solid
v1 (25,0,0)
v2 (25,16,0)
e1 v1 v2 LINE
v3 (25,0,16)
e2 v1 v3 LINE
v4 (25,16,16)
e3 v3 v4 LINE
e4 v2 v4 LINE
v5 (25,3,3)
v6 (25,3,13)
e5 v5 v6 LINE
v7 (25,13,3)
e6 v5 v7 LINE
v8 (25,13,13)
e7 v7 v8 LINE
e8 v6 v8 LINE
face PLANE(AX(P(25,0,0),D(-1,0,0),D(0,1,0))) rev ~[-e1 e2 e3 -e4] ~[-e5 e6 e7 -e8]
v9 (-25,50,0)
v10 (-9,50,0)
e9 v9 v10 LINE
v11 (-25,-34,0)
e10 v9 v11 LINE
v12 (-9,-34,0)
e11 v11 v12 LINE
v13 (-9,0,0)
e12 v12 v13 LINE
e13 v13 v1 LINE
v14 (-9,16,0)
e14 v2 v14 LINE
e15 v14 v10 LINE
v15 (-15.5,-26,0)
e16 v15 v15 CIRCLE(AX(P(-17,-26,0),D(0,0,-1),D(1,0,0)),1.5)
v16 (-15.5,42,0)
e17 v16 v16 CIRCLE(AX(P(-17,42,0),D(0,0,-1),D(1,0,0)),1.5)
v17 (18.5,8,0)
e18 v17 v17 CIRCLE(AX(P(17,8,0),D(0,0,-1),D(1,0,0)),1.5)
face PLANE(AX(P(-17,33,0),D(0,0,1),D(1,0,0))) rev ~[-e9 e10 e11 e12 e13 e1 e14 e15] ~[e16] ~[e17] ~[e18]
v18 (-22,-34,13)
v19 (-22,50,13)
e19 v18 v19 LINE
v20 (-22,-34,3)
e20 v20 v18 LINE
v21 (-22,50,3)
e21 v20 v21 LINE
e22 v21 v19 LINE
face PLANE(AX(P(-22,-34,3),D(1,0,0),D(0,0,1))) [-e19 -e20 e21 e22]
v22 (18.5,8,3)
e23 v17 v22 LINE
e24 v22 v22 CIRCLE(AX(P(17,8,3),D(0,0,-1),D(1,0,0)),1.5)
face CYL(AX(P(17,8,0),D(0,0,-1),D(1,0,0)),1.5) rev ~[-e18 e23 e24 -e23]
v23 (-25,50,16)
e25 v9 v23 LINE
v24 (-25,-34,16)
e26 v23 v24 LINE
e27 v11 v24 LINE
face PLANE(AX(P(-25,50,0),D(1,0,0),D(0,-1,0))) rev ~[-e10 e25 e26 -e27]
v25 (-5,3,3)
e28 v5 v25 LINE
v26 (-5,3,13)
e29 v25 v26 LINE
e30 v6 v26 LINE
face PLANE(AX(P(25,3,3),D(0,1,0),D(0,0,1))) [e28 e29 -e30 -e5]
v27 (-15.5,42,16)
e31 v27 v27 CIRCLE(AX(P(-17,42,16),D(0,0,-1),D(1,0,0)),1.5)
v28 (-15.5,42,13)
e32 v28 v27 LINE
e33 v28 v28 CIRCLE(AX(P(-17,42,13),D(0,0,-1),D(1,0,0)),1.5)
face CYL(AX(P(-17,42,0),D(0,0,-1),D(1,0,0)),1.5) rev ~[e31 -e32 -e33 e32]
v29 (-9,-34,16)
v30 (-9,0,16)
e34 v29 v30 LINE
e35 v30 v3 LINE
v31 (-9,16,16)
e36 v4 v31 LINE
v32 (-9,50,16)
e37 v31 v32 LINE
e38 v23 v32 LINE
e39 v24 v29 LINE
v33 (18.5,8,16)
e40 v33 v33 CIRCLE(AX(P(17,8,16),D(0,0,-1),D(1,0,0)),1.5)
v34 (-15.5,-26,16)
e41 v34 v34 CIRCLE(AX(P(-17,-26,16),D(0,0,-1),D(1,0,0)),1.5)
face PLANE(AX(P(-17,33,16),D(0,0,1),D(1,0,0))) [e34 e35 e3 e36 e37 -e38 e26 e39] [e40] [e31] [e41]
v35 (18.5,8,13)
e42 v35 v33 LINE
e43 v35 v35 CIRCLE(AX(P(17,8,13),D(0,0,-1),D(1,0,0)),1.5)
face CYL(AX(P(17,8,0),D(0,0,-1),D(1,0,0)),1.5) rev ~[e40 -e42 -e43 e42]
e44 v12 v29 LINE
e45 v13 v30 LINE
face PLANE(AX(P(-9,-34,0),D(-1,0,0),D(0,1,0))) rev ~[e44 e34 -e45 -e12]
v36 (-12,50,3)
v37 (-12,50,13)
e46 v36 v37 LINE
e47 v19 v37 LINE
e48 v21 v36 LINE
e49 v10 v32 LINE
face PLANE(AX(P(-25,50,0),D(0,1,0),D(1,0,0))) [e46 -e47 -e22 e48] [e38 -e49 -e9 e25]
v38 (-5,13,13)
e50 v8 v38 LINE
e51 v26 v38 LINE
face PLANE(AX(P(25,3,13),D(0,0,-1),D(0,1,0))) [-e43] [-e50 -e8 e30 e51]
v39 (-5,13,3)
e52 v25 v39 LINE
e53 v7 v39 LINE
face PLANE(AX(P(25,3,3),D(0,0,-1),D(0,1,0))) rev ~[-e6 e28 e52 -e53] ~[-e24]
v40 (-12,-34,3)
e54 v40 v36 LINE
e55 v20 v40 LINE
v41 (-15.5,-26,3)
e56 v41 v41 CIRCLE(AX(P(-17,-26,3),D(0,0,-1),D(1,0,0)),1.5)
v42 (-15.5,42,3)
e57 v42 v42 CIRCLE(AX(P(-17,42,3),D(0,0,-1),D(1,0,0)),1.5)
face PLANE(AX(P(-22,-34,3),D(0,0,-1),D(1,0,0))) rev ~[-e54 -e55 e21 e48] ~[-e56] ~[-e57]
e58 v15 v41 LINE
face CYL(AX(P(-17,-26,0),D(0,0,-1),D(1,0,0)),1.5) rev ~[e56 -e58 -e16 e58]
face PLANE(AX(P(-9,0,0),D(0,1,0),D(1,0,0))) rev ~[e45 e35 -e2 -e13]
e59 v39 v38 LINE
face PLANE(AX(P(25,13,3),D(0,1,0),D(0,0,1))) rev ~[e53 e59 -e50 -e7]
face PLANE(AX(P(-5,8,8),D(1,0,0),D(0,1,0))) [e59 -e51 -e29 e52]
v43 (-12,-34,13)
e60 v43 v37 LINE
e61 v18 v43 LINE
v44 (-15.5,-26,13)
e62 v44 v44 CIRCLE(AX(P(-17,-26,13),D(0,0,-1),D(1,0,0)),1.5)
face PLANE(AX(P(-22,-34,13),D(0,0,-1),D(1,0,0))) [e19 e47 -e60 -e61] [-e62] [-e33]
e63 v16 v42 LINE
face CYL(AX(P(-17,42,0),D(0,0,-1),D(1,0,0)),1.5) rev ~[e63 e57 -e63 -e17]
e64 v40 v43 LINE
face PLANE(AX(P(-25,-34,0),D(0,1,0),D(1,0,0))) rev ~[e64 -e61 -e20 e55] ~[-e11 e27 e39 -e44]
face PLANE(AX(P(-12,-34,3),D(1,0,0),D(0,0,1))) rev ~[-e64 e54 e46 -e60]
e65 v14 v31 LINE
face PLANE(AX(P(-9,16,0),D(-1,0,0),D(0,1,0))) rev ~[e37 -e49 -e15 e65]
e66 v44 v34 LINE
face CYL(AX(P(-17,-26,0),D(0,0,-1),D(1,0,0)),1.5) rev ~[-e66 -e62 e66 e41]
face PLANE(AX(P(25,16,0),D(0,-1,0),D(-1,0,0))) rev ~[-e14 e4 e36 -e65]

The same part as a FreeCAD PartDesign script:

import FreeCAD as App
import Part
import Sketcher
from FreeCAD import Vector


def add_polygon(sketch, points):
    """Adds a closed chain of lines whose ends are joined by coincident constraints."""
    first, n = sketch.GeometryCount, len(points)
    for a, b in zip(points, points[1:] + points[:1]):
        sketch.addGeometry(Part.LineSegment(App.Vector(*a, 0), App.Vector(*b, 0)), False)
    for i in range(n):
        sketch.addConstraint(Sketcher.Constraint("Coincident", first + i, 2, first + (i + 1) % n, 1))

doc = App.newDocument("Part")
params = doc.addObject("Spreadsheet::Sheet", "Params")
for row, (alias, value) in enumerate([
    ("sketch1_width", "16 mm"),
    ("sketch1_width2", "34 mm"),
    ("pad1_length", "16 mm"),
    ("sketch2_width", "10 mm"),
    ("pocket1_length", "30 mm"),
    ("sketch3_width", "10 mm"),
    ("pocket2_length", "84 mm"),
    ("sketch4_diameter", "3 mm"),
    ("pocket3_length", "16 mm"),
], start=1):
    params.set(f"A{row}", alias)
    params.set(f"B{row}", "=" + value)
    params.setAlias(f"B{row}", alias)

body = doc.addObject("PartDesign::Body", "Body")

# Sketch on XY plane
sketch1 = body.newObject("Sketcher::SketchObject", "Sketch")
sketch1.AttachmentSupport = (doc.getObject("XY_Plane"), [""])
sketch1.MapMode = "FlatFace"
add_polygon(sketch1, [(-25, 50), (-25, -34), (-9, -34), (-9, 0), (25, 0), (25, 16), (-9, 16), (-9, 50)])  # lines 0-7
sketch1.addConstraint([
    Sketcher.Constraint("Vertical", 0),
    Sketcher.Constraint("Horizontal", 1),
    Sketcher.Constraint("Vertical", 2),
    Sketcher.Constraint("Horizontal", 3),
    Sketcher.Constraint("Vertical", 4),
    Sketcher.Constraint("Horizontal", 5),
    Sketcher.Constraint("Vertical", 6),
    Sketcher.Constraint("Horizontal", 7),
    Sketcher.Constraint("PointOnObject", 2, 2, -1),
    Sketcher.Constraint("Vertical", 2, 2, 5, 2),
    Sketcher.Constraint("Equal", 5, 2),
    Sketcher.Constraint("Equal", 7, 4),
    Sketcher.Constraint("Equal", 2, 6),
    Sketcher.Constraint("DistanceX", 1, 1, 1, 2, 16.0),
    Sketcher.Constraint("DistanceX", 3, 1, 3, 2, 34.0),
    Sketcher.Constraint("DistanceX", 0, 2, -1, 1, 25.0),
])
sketch1.setExpression("Constraints[21]", "Params.sketch1_width")
sketch1.setExpression("Constraints[22]", "Params.sketch1_width2")
pad1 = body.newObject("PartDesign::Pad", "Pad")
pad1.Profile = sketch1
pad1.setExpression("Length", "Params.pad1_length")

# Sketch on YZ plane
sketch2 = body.newObject("Sketcher::SketchObject", "Sketch001")
sketch2.AttachmentSupport = (doc.getObject("YZ_Plane"), [""])
sketch2.MapMode = "FlatFace"
sketch2.AttachmentOffset = App.Placement(Vector(0, 0, 25), App.Rotation())
add_polygon(sketch2, [(3, 13), (3, 3), (13, 3), (13, 13)])  # lines 0-3
sketch2.addConstraint([
    Sketcher.Constraint("Vertical", 0),
    Sketcher.Constraint("Horizontal", 1),
    Sketcher.Constraint("Vertical", 2),
    Sketcher.Constraint("Horizontal", 3),
    Sketcher.Constraint("Equal", 3, 0),
    Sketcher.Constraint("DistanceX", 1, 1, 1, 2, 10.0),
    Sketcher.Constraint("DistanceX", -1, 1, 0, 2, 3.0),
    Sketcher.Constraint("DistanceY", -1, 1, 0, 2, 3.0),
])
sketch2.setExpression("Constraints[9]", "Params.sketch2_width")
pocket1 = body.newObject("PartDesign::Pocket", "Pocket")
pocket1.Profile = sketch2
pocket1.setExpression("Length", "Params.pocket1_length")

# Sketch on XZ plane
sketch3 = body.newObject("Sketcher::SketchObject", "Sketch002")
sketch3.AttachmentSupport = (doc.getObject("XZ_Plane"), [""])
sketch3.MapMode = "FlatFace"
sketch3.AttachmentOffset = App.Placement(Vector(0, 0, 34), App.Rotation())
add_polygon(sketch3, [(-22, 13), (-22, 3), (-12, 3), (-12, 13)])  # lines 0-3
sketch3.addConstraint([
    Sketcher.Constraint("Vertical", 0),
    Sketcher.Constraint("Horizontal", 1),
    Sketcher.Constraint("Vertical", 2),
    Sketcher.Constraint("Horizontal", 3),
    Sketcher.Constraint("Equal", 3, 0),
    Sketcher.Constraint("DistanceX", 1, 1, 1, 2, 10.0),
    Sketcher.Constraint("DistanceX", 0, 2, -1, 1, 22.0),
    Sketcher.Constraint("DistanceY", -1, 1, 0, 2, 3.0),
])
sketch3.setExpression("Constraints[9]", "Params.sketch3_width")
pocket2 = body.newObject("PartDesign::Pocket", "Pocket001")
pocket2.Profile = sketch3
pocket2.setExpression("Length", "Params.pocket2_length")

# Sketch on XY plane
sketch4 = body.newObject("Sketcher::SketchObject", "Sketch003")
sketch4.AttachmentSupport = (doc.getObject("XY_Plane"), [""])
sketch4.MapMode = "FlatFace"
sketch4.addGeometry([
    Part.Circle(Vector(-17, 42, 0), Vector(0, 0, 1), 1.5),
    Part.Circle(Vector(17, 8, 0), Vector(0, 0, 1), 1.5),
    Part.Circle(Vector(-17, -26, 0), Vector(0, 0, 1), 1.5),
], False)
sketch4.addConstraint([
    Sketcher.Constraint("Equal", 0, 1),
    Sketcher.Constraint("Equal", 1, 2),
    Sketcher.Constraint("Vertical", 0, 3, 2, 3),
    Sketcher.Constraint("Diameter", 0, 3.0),
    Sketcher.Constraint("DistanceX", 0, 3, -1, 1, 17.0),
    Sketcher.Constraint("DistanceY", -1, 1, 0, 3, 42.0),
    Sketcher.Constraint("DistanceX", -1, 1, 1, 3, 17.0),
    Sketcher.Constraint("DistanceY", -1, 1, 1, 3, 8.0),
    Sketcher.Constraint("DistanceY", 2, 3, -1, 1, 26.0),
])
sketch4.setExpression("Constraints[3]", "Params.sketch4_diameter")
pocket3 = body.newObject("PartDesign::Pocket", "Pocket002")
pocket3.Profile = sketch4
pocket3.setExpression("Length", "Params.pocket3_length")
pocket3.Reversed = True

doc.recompute()
